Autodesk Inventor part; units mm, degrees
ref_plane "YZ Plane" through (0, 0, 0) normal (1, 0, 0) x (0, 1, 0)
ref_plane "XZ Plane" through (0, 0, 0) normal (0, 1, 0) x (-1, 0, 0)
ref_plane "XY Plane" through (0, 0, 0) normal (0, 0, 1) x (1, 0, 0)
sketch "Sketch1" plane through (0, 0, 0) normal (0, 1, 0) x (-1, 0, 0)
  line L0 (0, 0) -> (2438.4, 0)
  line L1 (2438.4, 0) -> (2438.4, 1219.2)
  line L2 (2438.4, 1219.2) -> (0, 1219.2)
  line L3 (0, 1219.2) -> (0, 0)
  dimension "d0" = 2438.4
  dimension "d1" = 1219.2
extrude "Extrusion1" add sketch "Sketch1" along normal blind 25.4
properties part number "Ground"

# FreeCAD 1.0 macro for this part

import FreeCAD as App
import Part
import Sketcher

V = App.Vector
Q = App.Units.Quantity

doc = App.newDocument("Part")
body = doc.addObject("PartDesign::Body", "Body")

sketch1 = doc.addObject("Sketcher::SketchObject", "Sketch")
body.addObject(sketch1)
sketch1.AttachmentSupport = (doc.XZ_Plane, [""])
sketch1.MapMode = "FlatFace"
sketch1.addGeometry(Part.LineSegment(V(0, 1219, 0), V(0, 0, 0)), False)
sketch1.addGeometry(Part.LineSegment(V(0, 0, 0), V(-2438, 0, 0)), False)
sketch1.addGeometry(Part.LineSegment(V(-2438, 0, 0), V(-2438, 1219, 0)), False)
sketch1.addGeometry(Part.LineSegment(V(-2438, 1219, 0), V(0, 1219, 0)), False)
sketch1.addConstraint(Sketcher.Constraint("Coincident", 0, 2, 1, 1))
sketch1.addConstraint(Sketcher.Constraint("Coincident", 1, 2, 2, 1))
sketch1.addConstraint(Sketcher.Constraint("Coincident", 2, 2, 3, 1))
sketch1.addConstraint(Sketcher.Constraint("Coincident", 3, 2, 0, 1))
sketch1.addConstraint(Sketcher.Constraint("Vertical", 0))
sketch1.addConstraint(Sketcher.Constraint("Horizontal", 1))
sketch1.addConstraint(Sketcher.Constraint("Vertical", 2))
sketch1.addConstraint(Sketcher.Constraint("Horizontal", 3))
sketch1.addConstraint(Sketcher.Constraint("Coincident", 0, 2, -1, 1))
sketch1.addConstraint(Sketcher.Constraint("DistanceX", 1, 2, 1, 1, Q("96 in")))
sketch1.addConstraint(Sketcher.Constraint("DistanceY", 0, 2, 0, 1, Q("48 in")))
pad1 = doc.addObject("PartDesign::Pad", "Pad")
body.addObject(pad1)
pad1.Profile = sketch1
pad1.Length = Q("1 in")
pad1.Reversed = True

doc.recompute()
